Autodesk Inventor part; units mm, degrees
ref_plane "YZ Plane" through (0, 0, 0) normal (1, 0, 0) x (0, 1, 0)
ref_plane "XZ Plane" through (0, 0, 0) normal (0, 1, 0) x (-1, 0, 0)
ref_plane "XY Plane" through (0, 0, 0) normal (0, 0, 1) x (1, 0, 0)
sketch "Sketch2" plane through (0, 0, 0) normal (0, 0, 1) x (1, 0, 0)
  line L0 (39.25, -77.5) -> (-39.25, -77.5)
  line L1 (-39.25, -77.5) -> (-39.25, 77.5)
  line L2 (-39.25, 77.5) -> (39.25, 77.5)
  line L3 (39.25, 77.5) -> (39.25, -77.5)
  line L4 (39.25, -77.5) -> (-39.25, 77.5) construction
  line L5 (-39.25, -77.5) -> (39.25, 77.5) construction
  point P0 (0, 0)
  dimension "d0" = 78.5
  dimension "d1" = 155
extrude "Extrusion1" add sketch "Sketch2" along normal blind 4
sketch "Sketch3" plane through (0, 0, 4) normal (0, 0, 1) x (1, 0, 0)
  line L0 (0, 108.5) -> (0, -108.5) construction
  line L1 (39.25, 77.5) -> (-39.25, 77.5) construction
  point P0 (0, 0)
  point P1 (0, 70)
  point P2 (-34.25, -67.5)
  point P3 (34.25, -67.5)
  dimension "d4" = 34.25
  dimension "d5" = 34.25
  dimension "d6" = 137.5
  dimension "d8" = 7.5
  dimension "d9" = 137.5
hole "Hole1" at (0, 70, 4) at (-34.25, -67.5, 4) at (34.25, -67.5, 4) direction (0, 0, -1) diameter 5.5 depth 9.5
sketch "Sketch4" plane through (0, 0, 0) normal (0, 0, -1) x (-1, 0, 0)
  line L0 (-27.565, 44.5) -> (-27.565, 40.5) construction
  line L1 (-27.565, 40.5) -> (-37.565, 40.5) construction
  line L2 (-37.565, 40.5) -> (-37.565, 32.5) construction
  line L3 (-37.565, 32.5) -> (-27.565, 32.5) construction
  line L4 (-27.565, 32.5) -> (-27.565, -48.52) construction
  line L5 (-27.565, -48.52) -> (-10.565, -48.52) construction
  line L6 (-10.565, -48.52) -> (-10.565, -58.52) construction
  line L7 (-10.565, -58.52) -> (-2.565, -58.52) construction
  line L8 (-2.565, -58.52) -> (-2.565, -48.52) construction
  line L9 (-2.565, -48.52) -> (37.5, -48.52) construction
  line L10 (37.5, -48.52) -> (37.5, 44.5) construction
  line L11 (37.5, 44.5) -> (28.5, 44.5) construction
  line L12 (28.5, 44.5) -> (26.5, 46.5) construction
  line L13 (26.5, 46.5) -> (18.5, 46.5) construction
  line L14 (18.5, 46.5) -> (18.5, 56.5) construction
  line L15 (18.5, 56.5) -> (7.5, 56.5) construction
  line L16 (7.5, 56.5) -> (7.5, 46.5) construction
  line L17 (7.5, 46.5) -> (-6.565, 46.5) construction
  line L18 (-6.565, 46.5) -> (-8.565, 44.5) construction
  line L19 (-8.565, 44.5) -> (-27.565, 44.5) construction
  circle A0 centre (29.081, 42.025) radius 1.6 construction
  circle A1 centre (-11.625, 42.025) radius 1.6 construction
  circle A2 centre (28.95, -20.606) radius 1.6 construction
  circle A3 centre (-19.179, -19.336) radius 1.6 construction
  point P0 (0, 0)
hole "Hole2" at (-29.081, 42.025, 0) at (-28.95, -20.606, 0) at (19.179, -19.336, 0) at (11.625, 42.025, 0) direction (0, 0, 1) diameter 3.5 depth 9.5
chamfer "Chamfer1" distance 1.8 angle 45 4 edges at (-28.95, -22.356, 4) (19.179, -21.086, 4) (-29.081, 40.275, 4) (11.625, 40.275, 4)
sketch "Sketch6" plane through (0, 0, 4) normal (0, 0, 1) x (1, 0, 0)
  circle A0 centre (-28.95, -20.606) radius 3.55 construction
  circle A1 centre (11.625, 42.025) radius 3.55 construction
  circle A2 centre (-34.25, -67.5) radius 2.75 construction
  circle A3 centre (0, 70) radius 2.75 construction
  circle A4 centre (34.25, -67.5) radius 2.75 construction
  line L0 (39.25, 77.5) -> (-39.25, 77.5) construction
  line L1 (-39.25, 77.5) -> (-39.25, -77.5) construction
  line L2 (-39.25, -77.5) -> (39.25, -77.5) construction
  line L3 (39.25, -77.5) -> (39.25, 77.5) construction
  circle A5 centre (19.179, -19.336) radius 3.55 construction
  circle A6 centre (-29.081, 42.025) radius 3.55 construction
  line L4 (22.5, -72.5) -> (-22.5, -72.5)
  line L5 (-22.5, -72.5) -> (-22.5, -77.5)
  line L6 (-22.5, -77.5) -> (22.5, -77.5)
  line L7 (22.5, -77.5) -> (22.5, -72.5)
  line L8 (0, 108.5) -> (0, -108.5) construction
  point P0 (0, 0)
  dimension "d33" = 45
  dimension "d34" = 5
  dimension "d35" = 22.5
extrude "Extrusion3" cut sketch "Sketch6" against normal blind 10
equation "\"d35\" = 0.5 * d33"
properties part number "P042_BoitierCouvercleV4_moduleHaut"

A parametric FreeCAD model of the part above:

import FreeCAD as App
import Part
import Sketcher

V = App.Vector
Q = App.Units.Quantity


def edges_at(feature, points):
    """Names of the edges that pass closest to the given points."""
    edges = feature.Shape.Edges
    near = lambda p: min(range(len(edges)), key=lambda i: edges[i].distToShape(Part.Vertex(*p))[0])
    return sorted({f"Edge{near(p) + 1}" for p in points})

doc = App.newDocument("Part")
body = doc.addObject("PartDesign::Body", "Body")

sketch1 = body.newObject("Sketcher::SketchObject", "Sketch")
sketch1.AttachmentSupport = (doc.getObject("XY_Plane"), [""])
sketch1.MapMode = "FlatFace"
sketch1.addGeometry([
    Part.LineSegment(V(-39, -78, 0), V(39, -78, 0)),
    Part.LineSegment(V(39, -78, 0), V(39, 78, 0)),
    Part.LineSegment(V(39, 78, 0), V(-39, 78, 0)),
    Part.LineSegment(V(-39, 78, 0), V(-39, -78, 0)),
], False)
sketch1.addConstraint([
    Sketcher.Constraint("Coincident", 0, 2, 1, 1),
    Sketcher.Constraint("Coincident", 1, 2, 2, 1),
    Sketcher.Constraint("Coincident", 2, 2, 3, 1),
    Sketcher.Constraint("Coincident", 3, 2, 0, 1),
    Sketcher.Constraint("Horizontal", 0),
    Sketcher.Constraint("Vertical", 1),
    Sketcher.Constraint("Horizontal", 2),
    Sketcher.Constraint("Vertical", 3),
    Sketcher.Constraint("Symmetric", 0, 2, 2, 2, -1, 1),
    Sketcher.Constraint("DistanceY", 1, 1, 1, 2, Q("155 mm")),
    Sketcher.Constraint("DistanceX", 0, 1, 0, 2, Q("78.5 mm")),
])
pad1 = body.newObject("PartDesign::Pad", "Pad")
pad1.Profile = sketch1
pad1.Length = 4

sketch2 = body.newObject("Sketcher::SketchObject", "Sketch001")
sketch2.AttachmentSupport = (doc.getObject("XY_Plane"), [""])
sketch2.MapMode = "FlatFace"
sketch2.AttachmentOffset = App.Placement(V(0, 0, 4), App.Rotation())
sketch2.addGeometry([
    Part.Circle(V(0, 70, 0), V(0, 0, 1), 2.8),
    Part.Circle(V(-34.2, -67.5, 0), V(0, 0, 1), 2.8),
    Part.Circle(V(34.2, -67.5, 0), V(0, 0, 1), 2.8),
], False)
sketch2.addConstraint([
    Sketcher.Constraint("Equal", 0, 1),
    Sketcher.Constraint("Equal", 1, 2),
    Sketcher.Constraint("Symmetric", 1, 3, 2, 3, -2),
    Sketcher.Constraint("PointOnObject", 0, 3, -2),
    Sketcher.Constraint("Diameter", 0, Q("5.5 mm")),
    Sketcher.Constraint("DistanceY", -1, 1, 0, 3, Q("70 mm")),
    Sketcher.Constraint("DistanceY", 1, 3, -1, 1, Q("67.5 mm")),
    Sketcher.Constraint("DistanceX", 1, 3, 2, 3, Q("68.5 mm")),
])
doc.recompute()
hole = body.newObject("PartDesign::Hole", "Hole")
hole.Profile = sketch2
hole.ThreadType = "None"
hole.Diameter = 5.5
hole.DepthType = "Dimension"
hole.Depth = 9.5
hole.DrillPoint = "Flat"

sketch3 = body.newObject("Sketcher::SketchObject", "Sketch002")
sketch3.AttachmentSupport = (doc.getObject("XY_Plane"), [""])
sketch3.MapMode = "FlatFace"
sketch3.addGeometry([
    Part.Circle(V(-29.1, 42, 0), V(0, 0, 1), 1.8),
    Part.Circle(V(-28.9, -20.6, 0), V(0, 0, 1), 1.8),
    Part.Circle(V(19.2, -19.3, 0), V(0, 0, 1), 1.8),
    Part.Circle(V(11.6, 42, 0), V(0, 0, 1), 1.8),
], False)
sketch3.addConstraint([
    Sketcher.Constraint("Equal", 0, 1),
    Sketcher.Constraint("Equal", 1, 2),
    Sketcher.Constraint("Equal", 2, 3),
    Sketcher.Constraint("Horizontal", 0, 3, 3, 3),
    Sketcher.Constraint("Diameter", 0, Q("3.5 mm")),
    Sketcher.Constraint("DistanceX", 1, 3, -1, 1, Q("28.95 mm")),
    Sketcher.Constraint("DistanceY", 1, 3, 2, 3, Q("1.27 mm")),
    Sketcher.Constraint("DistanceX", 0, 3, 2, 3, Q("48.26 mm")),
    Sketcher.Constraint("DistanceX", 0, 3, -1, 1, Q("29.081 mm")),
    Sketcher.Constraint("DistanceY", -1, 1, 0, 3, Q("42.025 mm")),
    Sketcher.Constraint("DistanceY", 1, 3, -1, 1, Q("20.606 mm")),
    Sketcher.Constraint("DistanceX", -1, 1, 3, 3, Q("11.625 mm")),
])
doc.recompute()
hole2 = body.newObject("PartDesign::Hole", "Hole001")
hole2.Profile = sketch3
hole2.ThreadType = "None"
hole2.Diameter = 3.5
hole2.DepthType = "Dimension"
hole2.Depth = 9.5
hole2.DrillPoint = "Flat"
hole2.Reversed = True
doc.recompute()

chamfer = body.newObject("PartDesign::Chamfer", "Chamfer")
chamfer.Base = (hole2, edges_at(hole2, [
    (-28.95, -22.356, 4),
    (19.179, -21.086, 4),
    (-29.081, 40.275, 4),
    (11.625, 40.275, 4),
]))
chamfer.Size = 1.8

sketch4 = body.newObject("Sketcher::SketchObject", "Sketch003")
sketch4.AttachmentSupport = (doc.getObject("XY_Plane"), [""])
sketch4.MapMode = "FlatFace"
sketch4.AttachmentOffset = App.Placement(V(0, 0, 4), App.Rotation())
sketch4.addGeometry([
    Part.LineSegment(V(22, -78, 0), V(22, -72, 0)),
    Part.LineSegment(V(22, -72, 0), V(-22, -72, 0)),
    Part.LineSegment(V(-22, -72, 0), V(-22, -78, 0)),
    Part.LineSegment(V(-22, -78, 0), V(22, -78, 0)),
], False)
sketch4.addConstraint([
    Sketcher.Constraint("Coincident", 0, 2, 1, 1),
    Sketcher.Constraint("Coincident", 1, 2, 2, 1),
    Sketcher.Constraint("Coincident", 2, 2, 3, 1),
    Sketcher.Constraint("Coincident", 3, 2, 0, 1),
    Sketcher.Constraint("Vertical", 0),
    Sketcher.Constraint("Horizontal", 1),
    Sketcher.Constraint("Vertical", 2),
    Sketcher.Constraint("Horizontal", 3),
    Sketcher.Constraint("DistanceX", 1, 2, 1, 1, Q("45 mm")),
    Sketcher.Constraint("DistanceY", 0, 1, 0, 2, Q("5 mm")),
    Sketcher.Constraint("DistanceX", -1, 1, 0, 2, Q("22.5 mm")),
    Sketcher.Constraint("DistanceY", 0, 2, -1, 1, Q("72.5 mm")),
])
pocket1 = body.newObject("PartDesign::Pocket", "Pocket")
pocket1.Profile = sketch4
pocket1.Length = 10

doc.recompute()
